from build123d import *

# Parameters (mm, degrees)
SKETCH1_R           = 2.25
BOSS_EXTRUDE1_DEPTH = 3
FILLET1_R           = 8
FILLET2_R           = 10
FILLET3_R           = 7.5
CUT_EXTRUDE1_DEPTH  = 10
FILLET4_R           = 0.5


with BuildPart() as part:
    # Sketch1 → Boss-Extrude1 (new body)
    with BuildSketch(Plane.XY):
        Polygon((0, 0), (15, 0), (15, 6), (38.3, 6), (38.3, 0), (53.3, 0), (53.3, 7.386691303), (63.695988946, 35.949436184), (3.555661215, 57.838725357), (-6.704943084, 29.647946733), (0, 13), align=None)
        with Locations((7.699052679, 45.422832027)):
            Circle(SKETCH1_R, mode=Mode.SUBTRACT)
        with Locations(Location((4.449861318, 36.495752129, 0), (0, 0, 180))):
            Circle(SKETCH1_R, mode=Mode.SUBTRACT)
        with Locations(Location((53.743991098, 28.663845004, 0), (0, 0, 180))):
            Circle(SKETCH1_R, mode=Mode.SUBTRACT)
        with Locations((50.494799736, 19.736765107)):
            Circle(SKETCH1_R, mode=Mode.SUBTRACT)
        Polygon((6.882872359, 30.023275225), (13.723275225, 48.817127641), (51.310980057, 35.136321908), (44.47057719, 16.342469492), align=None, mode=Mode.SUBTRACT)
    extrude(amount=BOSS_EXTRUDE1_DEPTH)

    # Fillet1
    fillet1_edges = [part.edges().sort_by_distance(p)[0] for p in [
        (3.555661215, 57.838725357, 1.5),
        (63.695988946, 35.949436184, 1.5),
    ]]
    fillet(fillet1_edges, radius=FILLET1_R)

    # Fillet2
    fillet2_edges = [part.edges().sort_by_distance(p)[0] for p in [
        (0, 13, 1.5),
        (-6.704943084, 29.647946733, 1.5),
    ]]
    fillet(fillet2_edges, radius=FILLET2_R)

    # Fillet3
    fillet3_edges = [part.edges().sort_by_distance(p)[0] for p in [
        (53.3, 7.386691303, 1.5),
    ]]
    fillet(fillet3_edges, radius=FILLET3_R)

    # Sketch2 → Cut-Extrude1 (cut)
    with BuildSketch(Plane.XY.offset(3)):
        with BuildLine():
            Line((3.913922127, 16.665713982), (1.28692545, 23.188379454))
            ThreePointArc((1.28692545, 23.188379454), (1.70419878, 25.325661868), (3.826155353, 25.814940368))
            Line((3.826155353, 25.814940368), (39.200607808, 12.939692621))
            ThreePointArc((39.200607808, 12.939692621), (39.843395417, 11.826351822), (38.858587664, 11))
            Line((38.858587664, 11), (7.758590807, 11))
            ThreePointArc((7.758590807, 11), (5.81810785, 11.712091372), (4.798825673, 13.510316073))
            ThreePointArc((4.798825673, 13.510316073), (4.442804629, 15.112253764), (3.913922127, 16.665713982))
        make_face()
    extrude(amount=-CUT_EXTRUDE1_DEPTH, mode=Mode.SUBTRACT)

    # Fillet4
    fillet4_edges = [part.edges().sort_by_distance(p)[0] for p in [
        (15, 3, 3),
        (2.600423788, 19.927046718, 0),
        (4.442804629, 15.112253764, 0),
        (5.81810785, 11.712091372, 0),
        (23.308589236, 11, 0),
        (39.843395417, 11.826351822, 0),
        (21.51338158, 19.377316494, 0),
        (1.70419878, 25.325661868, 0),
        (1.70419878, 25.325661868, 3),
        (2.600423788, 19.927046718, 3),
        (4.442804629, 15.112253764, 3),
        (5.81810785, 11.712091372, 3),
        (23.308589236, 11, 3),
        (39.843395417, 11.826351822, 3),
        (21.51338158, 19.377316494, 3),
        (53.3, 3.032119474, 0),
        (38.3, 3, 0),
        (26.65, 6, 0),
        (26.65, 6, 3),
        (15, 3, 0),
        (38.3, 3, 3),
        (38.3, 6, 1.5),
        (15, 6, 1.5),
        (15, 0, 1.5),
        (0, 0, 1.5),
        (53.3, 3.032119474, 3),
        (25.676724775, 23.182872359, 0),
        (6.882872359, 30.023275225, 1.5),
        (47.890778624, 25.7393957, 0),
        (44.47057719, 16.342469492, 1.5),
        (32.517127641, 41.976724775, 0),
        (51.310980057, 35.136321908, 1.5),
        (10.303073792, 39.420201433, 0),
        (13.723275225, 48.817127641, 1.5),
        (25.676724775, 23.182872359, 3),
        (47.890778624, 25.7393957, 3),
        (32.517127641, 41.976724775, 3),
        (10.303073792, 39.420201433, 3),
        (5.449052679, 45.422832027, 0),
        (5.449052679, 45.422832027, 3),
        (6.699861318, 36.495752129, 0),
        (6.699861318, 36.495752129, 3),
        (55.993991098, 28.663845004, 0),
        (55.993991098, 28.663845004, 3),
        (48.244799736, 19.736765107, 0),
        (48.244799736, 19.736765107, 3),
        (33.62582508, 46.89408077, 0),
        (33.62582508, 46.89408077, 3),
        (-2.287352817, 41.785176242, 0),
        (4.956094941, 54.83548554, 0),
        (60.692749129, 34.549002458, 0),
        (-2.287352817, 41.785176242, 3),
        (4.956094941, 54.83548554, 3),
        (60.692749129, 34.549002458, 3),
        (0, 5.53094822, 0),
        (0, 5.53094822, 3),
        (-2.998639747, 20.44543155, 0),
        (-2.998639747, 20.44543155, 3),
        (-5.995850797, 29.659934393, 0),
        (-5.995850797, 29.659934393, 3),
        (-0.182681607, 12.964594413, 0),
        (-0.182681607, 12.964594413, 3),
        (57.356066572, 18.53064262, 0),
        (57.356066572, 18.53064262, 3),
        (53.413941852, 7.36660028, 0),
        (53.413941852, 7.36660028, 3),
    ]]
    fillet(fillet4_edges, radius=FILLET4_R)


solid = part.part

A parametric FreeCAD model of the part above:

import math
import FreeCAD as App
import Part
import Sketcher
from FreeCAD import Vector
Q = App.Units.Quantity


def edges_at(feature, points):
    """Names of the edges that pass closest to the given points."""
    edges = feature.Shape.Edges
    near = lambda p: min(range(len(edges)), key=lambda i: edges[i].distToShape(Part.Vertex(*p))[0])
    return sorted({f"Edge{near(p) + 1}" for p in points})

doc = App.newDocument("Part")
body = doc.addObject("PartDesign::Body", "Body")

# Sketch on XY plane
sketch1 = body.newObject("Sketcher::SketchObject", "Sketch")
sketch1.AttachmentSupport = (doc.getObject("XY_Plane"), [""])
sketch1.MapMode = "FlatFace"
sketch1.addGeometry(Part.LineSegment(Vector(0, 0, 0), Vector(15, 0, 0)), False)
sketch1.addGeometry(Part.LineSegment(Vector(15, 0, 0), Vector(15, 6, 0)), False)
sketch1.addGeometry(Part.LineSegment(Vector(15, 6, 0), Vector(38.3, 6, 0)), False)
sketch1.addGeometry(Part.LineSegment(Vector(38.3, 6, 0), Vector(38.3, 0, 0)), False)
sketch1.addGeometry(Part.LineSegment(Vector(38.3, 0, 0), Vector(53.3, 0, 0)), False)
sketch1.addGeometry(Part.LineSegment(Vector(53.3, 0, 0), Vector(53.3, 7.4, 0)), False)
sketch1.addGeometry(Part.LineSegment(Vector(53.3, 7.4, 0), Vector(63.7, 35.9, 0)), False)
sketch1.addGeometry(Part.LineSegment(Vector(63.7, 35.9, 0), Vector(3.6, 57.8, 0)), False)
sketch1.addGeometry(Part.LineSegment(Vector(3.6, 57.8, 0), Vector(-6.7, 29.6, 0)), False)
sketch1.addGeometry(Part.LineSegment(Vector(-6.7, 29.6, 0), Vector(0, 13, 0)), False)
sketch1.addGeometry(Part.LineSegment(Vector(0, 13, 0), Vector(0, 0, 0)), False)
sketch1.addGeometry(Part.Circle(Vector(50.5, 19.7, 0), Vector(0, 0, 1), 2.2), False)
sketch1.addGeometry(Part.Circle(Vector(53.7, 28.7, 0), Vector(0, 0, 1), 2.2), False)
sketch1.addGeometry(Part.Circle(Vector(4.4, 36.5, 0), Vector(0, 0, 1), 2.2), False)
sketch1.addGeometry(Part.LineSegment(Vector(44.5, 16.3, 0), Vector(6.9, 30, 0)), False)
sketch1.addGeometry(Part.LineSegment(Vector(6.9, 30, 0), Vector(13.7, 48.8, 0)), False)
sketch1.addGeometry(Part.LineSegment(Vector(13.7, 48.8, 0), Vector(51.3, 35.1, 0)), False)
sketch1.addGeometry(Part.LineSegment(Vector(51.3, 35.1, 0), Vector(44.5, 16.3, 0)), False)
sketch1.addGeometry(Part.Circle(Vector(7.7, 45.4, 0), Vector(0, 0, 1), 2.2), False)
sketch1.addConstraint(Sketcher.Constraint("Coincident", 0, 2, 1, 1))
sketch1.addConstraint(Sketcher.Constraint("Coincident", 1, 2, 2, 1))
sketch1.addConstraint(Sketcher.Constraint("Coincident", 2, 2, 3, 1))
sketch1.addConstraint(Sketcher.Constraint("Coincident", 3, 2, 4, 1))
sketch1.addConstraint(Sketcher.Constraint("Coincident", 4, 2, 5, 1))
sketch1.addConstraint(Sketcher.Constraint("Coincident", 5, 2, 6, 1))
sketch1.addConstraint(Sketcher.Constraint("Coincident", 6, 2, 7, 1))
sketch1.addConstraint(Sketcher.Constraint("Coincident", 7, 2, 8, 1))
sketch1.addConstraint(Sketcher.Constraint("Coincident", 8, 2, 9, 1))
sketch1.addConstraint(Sketcher.Constraint("Coincident", 9, 2, 10, 1))
sketch1.addConstraint(Sketcher.Constraint("Coincident", 10, 2, 0, 1))
sketch1.addConstraint(Sketcher.Constraint("Coincident", 14, 2, 15, 1))
sketch1.addConstraint(Sketcher.Constraint("Coincident", 15, 2, 16, 1))
sketch1.addConstraint(Sketcher.Constraint("Coincident", 16, 2, 17, 1))
sketch1.addConstraint(Sketcher.Constraint("Coincident", 17, 2, 14, 1))
sketch1.addConstraint(Sketcher.Constraint("Horizontal", 0))
sketch1.addConstraint(Sketcher.Constraint("Vertical", 1))
sketch1.addConstraint(Sketcher.Constraint("Horizontal", 2))
sketch1.addConstraint(Sketcher.Constraint("Vertical", 3))
sketch1.addConstraint(Sketcher.Constraint("Horizontal", 4))
sketch1.addConstraint(Sketcher.Constraint("Vertical", 5))
sketch1.addConstraint(Sketcher.Constraint("Vertical", 10))
sketch1.addConstraint(Sketcher.Constraint("Coincident", 10, 2, -1, 1))
sketch1.addConstraint(Sketcher.Constraint("Equal", 11, 12))
sketch1.addConstraint(Sketcher.Constraint("Equal", 12, 13))
sketch1.addConstraint(Sketcher.Constraint("Equal", 13, 18))
sketch1.addConstraint(Sketcher.Constraint("PointOnObject", 3, 2, -1))
sketch1.addConstraint(Sketcher.Constraint("Perpendicular", 6, 7))
sketch1.addConstraint(Sketcher.Constraint("Perpendicular", 7, 8))
sketch1.addConstraint(Sketcher.Constraint("Perpendicular", 8, 14))
sketch1.addConstraint(Sketcher.Constraint("Perpendicular", 14, 15))
sketch1.addConstraint(Sketcher.Constraint("Perpendicular", 15, 16))
sketch1.addConstraint(Sketcher.Constraint("Perpendicular", 16, 17))
sketch1.addConstraint(Sketcher.Constraint("Equal", 0, 4))
sketch1.addConstraint(Sketcher.Constraint("Diameter", 11, Q("4.5 mm")))
sketch1.addConstraint(Sketcher.Constraint("DistanceX", 0, 1, 0, 2, Q("15 mm")))
sketch1.addConstraint(Sketcher.Constraint("DistanceY", 1, 1, 1, 2, Q("6 mm")))
sketch1.addConstraint(Sketcher.Constraint("DistanceY", 10, 2, 10, 1, Q("13 mm")))
sketch1.addConstraint(Sketcher.Constraint("Angle", 6, Q("70 deg")))
sketch1.addConstraint(Sketcher.Constraint("Distance", 7, Q("64 mm")))
sketch1.addConstraint(Sketcher.Constraint("Distance", 8, Q("30 mm")))
sketch1.addConstraint(Sketcher.Constraint("Distance", 14, Q("40 mm")))
sketch1.addConstraint(Sketcher.Constraint("Distance", 15, Q("20 mm")))
sketch1.addConstraint(Sketcher.Constraint("DistanceX", 2, 1, 2, 2, Q("23.3 mm")))
sketch1.addConstraint(Sketcher.Constraint("DistanceY", 5, 1, 5, 2, Q("7.386691 mm")))
sketch1.addConstraint(Sketcher.Constraint("DistanceX", -1, 1, 11, 3, Q("50.4948 mm")))
sketch1.addConstraint(Sketcher.Constraint("DistanceX", 7, 2, 13, 3, Q("0.8942 mm")))
sketch1.addConstraint(Sketcher.Constraint("Distance", 6, Q("30.395838 mm")))
sketch1.addConstraint(Sketcher.Constraint("DistanceX", -1, 1, 12, 3, Q("53.743991 mm")))
sketch1.addConstraint(Sketcher.Constraint("DistanceX", -1, 1, 16, 2, Q("51.31098 mm")))
sketch1.addConstraint(Sketcher.Constraint("DistanceY", -1, 1, 16, 2, Q("35.136322 mm")))
sketch1.addConstraint(Sketcher.Constraint("DistanceY", 11, 3, 12, 3, Q("8.92708 mm")))
sketch1.addConstraint(Sketcher.Constraint("DistanceX", 13, 3, 18, 3, Q("3.249191 mm")))
sketch1.addConstraint(Sketcher.Constraint("DistanceY", 13, 3, 18, 3, Q("8.92708 mm")))
sketch1.addConstraint(Sketcher.Constraint("DistanceY", 12, 3, 6, 2, Q("7.285591 mm")))
sketch1.addConstraint(Sketcher.Constraint("DistanceY", -1, 1, 13, 3, Q("36.495752 mm")))
pad1 = body.newObject("PartDesign::Pad", "Pad")
pad1.Profile = sketch1
pad1.Length = 3
doc.recompute()

fillet = body.newObject("PartDesign::Fillet", "Fillet")
fillet.Base = (pad1, edges_at(pad1, [(3.556, 57.839, 1.5), (63.696, 35.949, 1.5)]))
fillet.Radius = 8
doc.recompute()

fillet2 = body.newObject("PartDesign::Fillet", "Fillet001")
fillet2.Base = (fillet, edges_at(fillet, [(0, 13, 1.5), (-6.705, 29.648, 1.5)]))
fillet2.Radius = 10
doc.recompute()

fillet3 = body.newObject("PartDesign::Fillet", "Fillet002")
fillet3.Base = (fillet2, edges_at(fillet2, [(53.3, 7.387, 1.5)]))
fillet3.Radius = 7.5

# Sketch on XY plane
sketch2 = body.newObject("Sketcher::SketchObject", "Sketch001")
sketch2.AttachmentSupport = (doc.getObject("XY_Plane"), [""])
sketch2.MapMode = "FlatFace"
sketch2.AttachmentOffset = App.Placement(Vector(0, 0, 3), App.Rotation())
sketch2.addGeometry(Part.LineSegment(Vector(1.3, 23.2, 0), Vector(3.9, 16.7, 0)), False)
sketch2.addGeometry(Part.ArcOfCircle(Part.Circle(Vector(-10, 11.1, 0), Vector(0, 0, 1), 15), math.radians(9.39), math.radians(21.94)), False)
sketch2.addGeometry(Part.ArcOfCircle(Part.Circle(Vector(7.8, 14, 0), Vector(0, 0, 1), 3), math.radians(-171), math.radians(-90)), False)
sketch2.addGeometry(Part.LineSegment(Vector(7.8, 11, 0), Vector(38.9, 11, 0)), False)
sketch2.addGeometry(Part.ArcOfCircle(Part.Circle(Vector(38.9, 12, 0), Vector(0, 0, 1), 1), math.radians(-90), math.radians(70)), False)
sketch2.addGeometry(Part.LineSegment(Vector(39.2, 12.9, 0), Vector(3.8, 25.8, 0)), False)
sketch2.addGeometry(Part.ArcOfCircle(Part.Circle(Vector(3.1, 23.9, 0), Vector(0, 0, 1), 2), math.radians(70), math.radians(202)), False)
sketch2.addConstraint(Sketcher.Constraint("Tangent", 0, 2, 1, 2))
sketch2.addConstraint(Sketcher.Constraint("Tangent", 1, 1, 2, 1))
sketch2.addConstraint(Sketcher.Constraint("Tangent", 2, 2, 3, 1))
sketch2.addConstraint(Sketcher.Constraint("Tangent", 3, 2, 4, 1))
sketch2.addConstraint(Sketcher.Constraint("Tangent", 4, 2, 5, 1))
sketch2.addConstraint(Sketcher.Constraint("Tangent", 5, 2, 6, 1))
sketch2.addConstraint(Sketcher.Constraint("Tangent", 6, 2, 0, 1))
sketch2.addConstraint(Sketcher.Constraint("Horizontal", 3))
sketch2.addConstraint(Sketcher.Constraint("Radius", 1, Q("15 mm")))
sketch2.addConstraint(Sketcher.Constraint("Radius", 2, Q("3 mm")))
sketch2.addConstraint(Sketcher.Constraint("Radius", 4, Q("1 mm")))
sketch2.addConstraint(Sketcher.Constraint("Radius", 6, Q("2 mm")))
sketch2.addConstraint(Sketcher.Constraint("Angle", 5, Q("160 deg")))
sketch2.addConstraint(Sketcher.Constraint("DistanceX", 1, 3, -1, 1, Q("10 mm")))
sketch2.addConstraint(Sketcher.Constraint("DistanceY", -1, 1, 2, 3, Q("14 mm")))
sketch2.addConstraint(Sketcher.Constraint("DistanceX", 6, 2, 1, 1, Q("3.5119 mm")))
sketch2.addConstraint(Sketcher.Constraint("DistanceX", 3, 1, 3, 2, Q("31.099997 mm")))
sketch2.addConstraint(Sketcher.Constraint("DistanceX", -1, 1, 2, 3, Q("7.758591 mm")))
pocket1 = body.newObject("PartDesign::Pocket", "Pocket")
pocket1.Profile = sketch2
pocket1.Length = 10
doc.recompute()

fillet4 = body.newObject("PartDesign::Fillet", "Fillet003")
fillet4.Base = (pocket1, edges_at(pocket1, [
    (15, 3, 3),
    (2.6, 19.927, 0),
    (4.443, 15.112, 0),
    (5.818, 11.712, 0),
    (23.309, 11, 0),
    (39.843, 11.826, 0),
    (21.513, 19.377, 0),
    (1.704, 25.326, 0),
    (1.704, 25.326, 3),
    (2.6, 19.927, 3),
    (4.443, 15.112, 3),
    (5.818, 11.712, 3),
    (23.309, 11, 3),
    (39.843, 11.826, 3),
    (21.513, 19.377, 3),
    (53.3, 3.032, 0),
    (38.3, 3, 0),
    (26.65, 6, 0),
    (26.65, 6, 3),
    (15, 3, 0),
    (38.3, 3, 3),
    (38.3, 6, 1.5),
    (15, 6, 1.5),
    (15, 0, 1.5),
    (0, 0, 1.5),
    (53.3, 3.032, 3),
    (25.677, 23.183, 0),
    (6.883, 30.023, 1.5),
    (47.891, 25.739, 0),
    (44.471, 16.342, 1.5),
    (32.517, 41.977, 0),
    (51.311, 35.136, 1.5),
    (10.303, 39.42, 0),
    (13.723, 48.817, 1.5),
    (25.677, 23.183, 3),
    (47.891, 25.739, 3),
    (32.517, 41.977, 3),
    (10.303, 39.42, 3),
    (5.449, 45.423, 0),
    (5.449, 45.423, 3),
    (6.7, 36.496, 0),
    (6.7, 36.496, 3),
    (55.994, 28.664, 0),
    (55.994, 28.664, 3),
    (48.245, 19.737, 0),
    (48.245, 19.737, 3),
    (33.626, 46.894, 0),
    (33.626, 46.894, 3),
    (-2.287, 41.785, 0),
    (4.956, 54.835, 0),
    (60.693, 34.549, 0),
    (-2.287, 41.785, 3),
    (4.956, 54.835, 3),
    (60.693, 34.549, 3),
    (0, 5.531, 0),
    (0, 5.531, 3),
    (-2.999, 20.445, 0),
    (-2.999, 20.445, 3),
    (-5.996, 29.66, 0),
    (-5.996, 29.66, 3),
    (-0.183, 12.965, 0),
    (-0.183, 12.965, 3),
    (57.356, 18.531, 0),
    (57.356, 18.531, 3),
    (53.414, 7.367, 0),
    (53.414, 7.367, 3),
]))
fillet4.Radius = 0.5

doc.recompute()
